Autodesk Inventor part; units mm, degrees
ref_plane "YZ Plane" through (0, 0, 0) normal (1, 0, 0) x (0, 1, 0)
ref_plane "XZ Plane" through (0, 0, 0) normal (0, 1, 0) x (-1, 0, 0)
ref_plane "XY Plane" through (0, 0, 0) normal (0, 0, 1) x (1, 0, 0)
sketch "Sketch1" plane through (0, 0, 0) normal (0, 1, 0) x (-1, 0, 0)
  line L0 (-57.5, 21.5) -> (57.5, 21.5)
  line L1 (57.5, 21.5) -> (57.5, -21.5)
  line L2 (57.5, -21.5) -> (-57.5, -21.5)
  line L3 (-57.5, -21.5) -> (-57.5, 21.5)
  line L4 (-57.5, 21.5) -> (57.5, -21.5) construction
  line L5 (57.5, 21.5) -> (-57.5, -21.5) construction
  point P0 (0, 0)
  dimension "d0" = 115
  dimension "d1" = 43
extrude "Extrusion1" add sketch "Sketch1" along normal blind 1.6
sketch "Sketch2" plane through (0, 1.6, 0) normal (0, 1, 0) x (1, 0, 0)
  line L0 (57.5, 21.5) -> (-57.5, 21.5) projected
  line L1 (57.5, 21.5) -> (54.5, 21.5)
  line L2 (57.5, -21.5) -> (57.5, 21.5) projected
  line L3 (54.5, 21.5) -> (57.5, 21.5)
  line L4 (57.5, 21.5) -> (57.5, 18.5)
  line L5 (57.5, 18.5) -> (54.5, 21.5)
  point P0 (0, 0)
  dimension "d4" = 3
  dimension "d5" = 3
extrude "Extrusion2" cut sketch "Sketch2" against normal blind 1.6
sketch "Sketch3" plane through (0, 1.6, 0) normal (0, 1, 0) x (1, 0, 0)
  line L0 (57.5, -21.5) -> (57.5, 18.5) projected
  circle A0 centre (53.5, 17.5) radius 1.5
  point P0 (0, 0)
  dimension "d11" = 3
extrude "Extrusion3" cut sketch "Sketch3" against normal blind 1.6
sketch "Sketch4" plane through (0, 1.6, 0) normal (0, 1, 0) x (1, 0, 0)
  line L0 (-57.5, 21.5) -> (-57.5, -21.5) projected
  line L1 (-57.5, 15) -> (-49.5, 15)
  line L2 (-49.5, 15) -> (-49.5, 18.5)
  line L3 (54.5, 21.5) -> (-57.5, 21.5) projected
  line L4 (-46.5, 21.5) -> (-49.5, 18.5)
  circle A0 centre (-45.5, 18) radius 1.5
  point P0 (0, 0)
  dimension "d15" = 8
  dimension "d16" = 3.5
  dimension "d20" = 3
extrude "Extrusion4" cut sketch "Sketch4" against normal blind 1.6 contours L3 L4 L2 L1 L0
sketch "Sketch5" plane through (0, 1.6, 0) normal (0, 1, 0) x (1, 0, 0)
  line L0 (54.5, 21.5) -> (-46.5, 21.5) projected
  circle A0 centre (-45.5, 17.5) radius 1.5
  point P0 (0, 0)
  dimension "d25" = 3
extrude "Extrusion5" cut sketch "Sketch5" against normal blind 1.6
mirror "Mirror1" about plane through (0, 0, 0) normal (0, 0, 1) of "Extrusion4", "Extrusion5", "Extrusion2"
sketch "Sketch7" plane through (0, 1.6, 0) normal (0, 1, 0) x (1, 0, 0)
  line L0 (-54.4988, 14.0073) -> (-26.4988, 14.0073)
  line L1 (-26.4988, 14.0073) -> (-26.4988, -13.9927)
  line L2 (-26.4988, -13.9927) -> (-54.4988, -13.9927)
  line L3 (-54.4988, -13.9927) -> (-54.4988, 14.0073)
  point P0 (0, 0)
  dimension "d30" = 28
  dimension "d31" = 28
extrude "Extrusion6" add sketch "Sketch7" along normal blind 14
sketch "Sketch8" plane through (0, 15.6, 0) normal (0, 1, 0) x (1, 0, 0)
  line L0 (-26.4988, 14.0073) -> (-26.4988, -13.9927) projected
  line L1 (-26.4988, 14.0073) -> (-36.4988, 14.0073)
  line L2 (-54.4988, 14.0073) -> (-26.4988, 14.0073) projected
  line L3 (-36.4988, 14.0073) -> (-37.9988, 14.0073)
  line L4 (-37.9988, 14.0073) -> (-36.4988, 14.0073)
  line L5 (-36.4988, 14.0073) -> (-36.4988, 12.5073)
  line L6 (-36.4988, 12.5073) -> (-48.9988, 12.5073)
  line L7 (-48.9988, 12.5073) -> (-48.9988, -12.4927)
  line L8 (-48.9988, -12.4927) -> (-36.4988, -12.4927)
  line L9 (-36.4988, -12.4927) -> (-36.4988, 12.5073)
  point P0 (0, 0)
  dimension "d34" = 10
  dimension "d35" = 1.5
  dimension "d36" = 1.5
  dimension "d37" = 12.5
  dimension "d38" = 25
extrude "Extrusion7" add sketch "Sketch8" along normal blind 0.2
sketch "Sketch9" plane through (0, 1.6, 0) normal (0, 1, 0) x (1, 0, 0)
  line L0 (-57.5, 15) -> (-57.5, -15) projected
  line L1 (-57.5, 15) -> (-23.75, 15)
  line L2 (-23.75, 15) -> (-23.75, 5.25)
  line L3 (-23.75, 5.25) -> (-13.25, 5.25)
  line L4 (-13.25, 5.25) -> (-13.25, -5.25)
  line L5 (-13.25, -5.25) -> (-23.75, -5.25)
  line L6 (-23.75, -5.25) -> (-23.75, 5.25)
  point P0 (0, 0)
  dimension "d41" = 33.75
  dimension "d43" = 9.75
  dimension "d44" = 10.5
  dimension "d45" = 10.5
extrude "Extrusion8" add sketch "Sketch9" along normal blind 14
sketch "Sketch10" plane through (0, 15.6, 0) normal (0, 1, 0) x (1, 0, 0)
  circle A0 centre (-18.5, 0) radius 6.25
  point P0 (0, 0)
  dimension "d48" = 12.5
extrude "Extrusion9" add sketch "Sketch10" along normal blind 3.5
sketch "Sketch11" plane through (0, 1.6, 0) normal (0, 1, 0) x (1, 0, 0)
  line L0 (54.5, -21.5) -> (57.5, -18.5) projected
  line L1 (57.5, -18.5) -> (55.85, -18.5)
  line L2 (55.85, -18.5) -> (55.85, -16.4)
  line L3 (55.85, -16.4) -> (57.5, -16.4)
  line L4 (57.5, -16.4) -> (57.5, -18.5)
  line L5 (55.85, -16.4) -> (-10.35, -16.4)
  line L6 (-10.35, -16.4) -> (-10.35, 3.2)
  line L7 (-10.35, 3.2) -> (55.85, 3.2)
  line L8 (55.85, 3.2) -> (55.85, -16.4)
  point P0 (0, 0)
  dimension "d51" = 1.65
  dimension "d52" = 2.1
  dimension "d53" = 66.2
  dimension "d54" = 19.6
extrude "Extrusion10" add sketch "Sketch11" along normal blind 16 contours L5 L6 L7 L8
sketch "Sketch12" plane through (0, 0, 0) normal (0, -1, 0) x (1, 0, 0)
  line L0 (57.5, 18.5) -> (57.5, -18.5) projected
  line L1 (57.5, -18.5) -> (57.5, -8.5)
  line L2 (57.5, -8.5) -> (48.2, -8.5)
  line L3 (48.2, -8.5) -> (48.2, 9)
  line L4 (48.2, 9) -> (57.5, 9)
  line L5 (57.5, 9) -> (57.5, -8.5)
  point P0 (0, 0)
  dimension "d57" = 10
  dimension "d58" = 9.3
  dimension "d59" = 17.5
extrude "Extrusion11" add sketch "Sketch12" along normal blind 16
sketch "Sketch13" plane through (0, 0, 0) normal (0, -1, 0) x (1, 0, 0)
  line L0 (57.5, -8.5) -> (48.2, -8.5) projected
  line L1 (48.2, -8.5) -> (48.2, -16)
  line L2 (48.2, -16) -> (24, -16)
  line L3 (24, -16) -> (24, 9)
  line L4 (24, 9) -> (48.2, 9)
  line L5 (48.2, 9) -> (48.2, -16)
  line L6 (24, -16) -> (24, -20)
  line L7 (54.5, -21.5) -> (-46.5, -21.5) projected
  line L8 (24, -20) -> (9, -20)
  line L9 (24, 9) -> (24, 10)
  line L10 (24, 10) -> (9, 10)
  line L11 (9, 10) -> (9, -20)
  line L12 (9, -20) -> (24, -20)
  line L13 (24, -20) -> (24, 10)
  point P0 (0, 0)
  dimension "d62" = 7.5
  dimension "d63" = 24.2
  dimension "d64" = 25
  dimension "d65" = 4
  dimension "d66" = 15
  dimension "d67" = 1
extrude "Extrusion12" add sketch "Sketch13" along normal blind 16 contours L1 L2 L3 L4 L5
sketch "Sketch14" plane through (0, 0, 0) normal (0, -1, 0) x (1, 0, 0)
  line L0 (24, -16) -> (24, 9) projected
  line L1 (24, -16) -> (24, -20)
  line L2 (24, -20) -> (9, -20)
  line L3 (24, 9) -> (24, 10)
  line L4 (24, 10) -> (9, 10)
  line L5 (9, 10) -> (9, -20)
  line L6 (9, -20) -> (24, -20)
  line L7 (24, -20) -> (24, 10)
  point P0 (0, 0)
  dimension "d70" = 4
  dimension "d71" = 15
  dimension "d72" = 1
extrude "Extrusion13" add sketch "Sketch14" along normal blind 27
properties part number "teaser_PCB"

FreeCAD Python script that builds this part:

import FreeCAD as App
import Part
import Sketcher

V = App.Vector

doc = App.newDocument("Part")
body = doc.addObject("PartDesign::Body", "Body")

sketch1 = body.newObject("Sketcher::SketchObject", "Sketch")
sketch1.AttachmentSupport = (doc.getObject("XZ_Plane"), [""])
sketch1.MapMode = "FlatFace"
sketch1.addGeometry([
    Part.LineSegment(V(-58, 22, 0), V(58, 22, 0)),
    Part.LineSegment(V(58, 22, 0), V(58, -22, 0)),
    Part.LineSegment(V(58, -22, 0), V(-58, -22, 0)),
    Part.LineSegment(V(-58, -22, 0), V(-58, 22, 0)),
], False)
sketch1.addConstraint([
    Sketcher.Constraint("Coincident", 0, 2, 1, 1),
    Sketcher.Constraint("Coincident", 1, 2, 2, 1),
    Sketcher.Constraint("Coincident", 2, 2, 3, 1),
    Sketcher.Constraint("Coincident", 3, 2, 0, 1),
    Sketcher.Constraint("Horizontal", 0),
    Sketcher.Constraint("Vertical", 1),
    Sketcher.Constraint("Horizontal", 2),
    Sketcher.Constraint("Vertical", 3),
    Sketcher.Constraint("Symmetric", 0, 2, 2, 2, -1, 1),
    Sketcher.Constraint("DistanceX", 0, 1, 0, 2, 115.0),
    Sketcher.Constraint("DistanceY", 1, 2, 1, 1, 43.0),
])
pad1 = body.newObject("PartDesign::Pad", "Pad")
pad1.Profile = sketch1
pad1.Length = 1.6
pad1.Reversed = True

sketch2 = body.newObject("Sketcher::SketchObject", "Sketch001")
sketch2.AttachmentSupport = (doc.getObject("XZ_Plane"), [""])
sketch2.MapMode = "FlatFace"
sketch2.AttachmentOffset = App.Placement(V(0, 0, -1.6), App.Rotation())
sketch2.addGeometry([
    Part.LineSegment(V(57.5, -18.5, 0), V(57.5, -21.5, 0)),
    Part.LineSegment(V(57.5, -21.5, 0), V(54.5, -21.5, 0)),
    Part.LineSegment(V(54.5, -21.5, 0), V(57.5, -18.5, 0)),
], False)
sketch2.addConstraint([
    Sketcher.Constraint("Coincident", 0, 2, 1, 1),
    Sketcher.Constraint("Coincident", 1, 2, 2, 1),
    Sketcher.Constraint("Coincident", 2, 2, 0, 1),
    Sketcher.Constraint("Vertical", 0),
    Sketcher.Constraint("Horizontal", 1),
    Sketcher.Constraint("Equal", 1, 0),
    Sketcher.Constraint("DistanceX", 1, 2, 1, 1, 3.0),
    Sketcher.Constraint("DistanceX", -1, 1, 0, 2, 57.5),
    Sketcher.Constraint("DistanceY", 0, 2, -1, 1, 21.5),
])
pocket1 = body.newObject("PartDesign::Pocket", "Pocket")
pocket1.Profile = sketch2
pocket1.Length = 1.6
pocket1.Reversed = True

sketch3 = body.newObject("Sketcher::SketchObject", "Sketch002")
sketch3.AttachmentSupport = (doc.getObject("XZ_Plane"), [""])
sketch3.MapMode = "FlatFace"
sketch3.AttachmentOffset = App.Placement(V(0, 0, -1.6), App.Rotation())
sketch3.addGeometry(Part.Circle(V(53.5, -17.5, 0), V(0, 0, 1), 1.5), False)
sketch3.addConstraint([
    Sketcher.Constraint("Diameter", 0, 3.0),
    Sketcher.Constraint("DistanceX", -1, 1, 0, 3, 53.5),
    Sketcher.Constraint("DistanceY", 0, 3, -1, 1, 17.5),
])
pocket2 = body.newObject("PartDesign::Pocket", "Pocket001")
pocket2.Profile = sketch3
pocket2.Length = 1.6
pocket2.Reversed = True

sketch4 = body.newObject("Sketcher::SketchObject", "Sketch003")
sketch4.AttachmentSupport = (doc.getObject("XZ_Plane"), [""])
sketch4.MapMode = "FlatFace"
sketch4.AttachmentOffset = App.Placement(V(0, 0, -1.6), App.Rotation())
sketch4.addGeometry([
    Part.LineSegment(V(-46.5, -21.5, 0), V(-57.5, -21.5, 0)),
    Part.LineSegment(V(-57.5, -21.5, 0), V(-57.5, -15, 0)),
    Part.LineSegment(V(-57.5, -15, 0), V(-49.5, -15, 0)),
    Part.LineSegment(V(-49.5, -15, 0), V(-49.5, -18.5, 0)),
    Part.LineSegment(V(-49.5, -18.5, 0), V(-46.5, -21.5, 0)),
], False)
sketch4.addConstraint([
    Sketcher.Constraint("Coincident", 0, 2, 1, 1),
    Sketcher.Constraint("Coincident", 1, 2, 2, 1),
    Sketcher.Constraint("Coincident", 2, 2, 3, 1),
    Sketcher.Constraint("Coincident", 3, 2, 4, 1),
    Sketcher.Constraint("Coincident", 4, 2, 0, 1),
    Sketcher.Constraint("Horizontal", 0),
    Sketcher.Constraint("Vertical", 1),
    Sketcher.Constraint("Horizontal", 2),
    Sketcher.Constraint("Vertical", 3),
    Sketcher.Constraint("DistanceX", 2, 1, 2, 2, 8.0),
    Sketcher.Constraint("DistanceY", 3, 2, 3, 1, 3.5),
    Sketcher.Constraint("DistanceY", 0, 2, 3, 2, 3.0),
    Sketcher.Constraint("DistanceX", 3, 2, 4, 2, 3.0),
    Sketcher.Constraint("DistanceY", 1, 2, -1, 1, 15.0),
    Sketcher.Constraint("DistanceX", 0, 2, -1, 1, 57.5),
])
pocket3 = body.newObject("PartDesign::Pocket", "Pocket002")
pocket3.Profile = sketch4
pocket3.Length = 1.6
pocket3.Reversed = True

sketch5 = body.newObject("Sketcher::SketchObject", "Sketch004")
sketch5.AttachmentSupport = (doc.getObject("XZ_Plane"), [""])
sketch5.MapMode = "FlatFace"
sketch5.AttachmentOffset = App.Placement(V(0, 0, -1.6), App.Rotation())
sketch5.addGeometry(Part.Circle(V(-45.5, -17.5, 0), V(0, 0, 1), 1.5), False)
sketch5.addConstraint([
    Sketcher.Constraint("Diameter", 0, 3.0),
    Sketcher.Constraint("DistanceX", 0, 3, -1, 1, 45.5),
    Sketcher.Constraint("DistanceY", 0, 3, -1, 1, 17.5),
])
pocket4 = body.newObject("PartDesign::Pocket", "Pocket003")
pocket4.Profile = sketch5
pocket4.Length = 1.6
pocket4.Reversed = True
doc.recompute()

mirrored = body.newObject("PartDesign::Mirrored", "Mirrored")
mirrored.Originals = [pocket3, pocket4, pocket1]
mirrored.MirrorPlane = (doc.getObject("XY_Plane"), [""])
body.Tip = mirrored

sketch6 = body.newObject("Sketcher::SketchObject", "Sketch005")
sketch6.AttachmentSupport = (doc.getObject("XZ_Plane"), [""])
sketch6.MapMode = "FlatFace"
sketch6.AttachmentOffset = App.Placement(V(0, 0, -1.6), App.Rotation())
sketch6.addGeometry([
    Part.LineSegment(V(-26, -14, 0), V(-54, -14, 0)),
    Part.LineSegment(V(-54, -14, 0), V(-54, 14, 0)),
    Part.LineSegment(V(-54, 14, 0), V(-26, 14, 0)),
    Part.LineSegment(V(-26, 14, 0), V(-26, -14, 0)),
], False)
sketch6.addConstraint([
    Sketcher.Constraint("Coincident", 0, 2, 1, 1),
    Sketcher.Constraint("Coincident", 1, 2, 2, 1),
    Sketcher.Constraint("Coincident", 2, 2, 3, 1),
    Sketcher.Constraint("Coincident", 3, 2, 0, 1),
    Sketcher.Constraint("Horizontal", 0),
    Sketcher.Constraint("Vertical", 1),
    Sketcher.Constraint("Horizontal", 2),
    Sketcher.Constraint("Vertical", 3),
    Sketcher.Constraint("Equal", 2, 1),
    Sketcher.Constraint("DistanceX", 0, 2, 0, 1, 28.0),
    Sketcher.Constraint("DistanceX", 0, 2, -1, 1, 54.4988),
    Sketcher.Constraint("DistanceY", 0, 2, -1, 1, 14.0073),
])
pad2 = body.newObject("PartDesign::Pad", "Pad001")
pad2.Profile = sketch6
pad2.Length = 14
pad2.Reversed = True

sketch7 = body.newObject("Sketcher::SketchObject", "Sketch006")
sketch7.AttachmentSupport = (doc.getObject("XZ_Plane"), [""])
sketch7.MapMode = "FlatFace"
sketch7.AttachmentOffset = App.Placement(V(0, 0, -15.6), App.Rotation())
sketch7.addGeometry([
    Part.LineSegment(V(-36, 12, 0), V(-36, -13, 0)),
    Part.LineSegment(V(-36, -13, 0), V(-49, -13, 0)),
    Part.LineSegment(V(-49, -13, 0), V(-49, 12, 0)),
    Part.LineSegment(V(-49, 12, 0), V(-36, 12, 0)),
], False)
sketch7.addConstraint([
    Sketcher.Constraint("Coincident", 0, 2, 1, 1),
    Sketcher.Constraint("Coincident", 1, 2, 2, 1),
    Sketcher.Constraint("Coincident", 2, 2, 3, 1),
    Sketcher.Constraint("Coincident", 3, 2, 0, 1),
    Sketcher.Constraint("Vertical", 0),
    Sketcher.Constraint("Horizontal", 1),
    Sketcher.Constraint("Vertical", 2),
    Sketcher.Constraint("Horizontal", 3),
    Sketcher.Constraint("DistanceY", 0, 2, 0, 1, 25.0),
    Sketcher.Constraint("DistanceX", 1, 2, 1, 1, 12.5),
    Sketcher.Constraint("DistanceX", 0, 2, -1, 1, 36.4988),
    Sketcher.Constraint("DistanceY", 0, 2, -1, 1, 12.5073),
])
pad3 = body.newObject("PartDesign::Pad", "Pad002")
pad3.Profile = sketch7
pad3.Length = 0.2
pad3.Reversed = True

sketch8 = body.newObject("Sketcher::SketchObject", "Sketch007")
sketch8.AttachmentSupport = (doc.getObject("XZ_Plane"), [""])
sketch8.MapMode = "FlatFace"
sketch8.AttachmentOffset = App.Placement(V(0, 0, -1.6), App.Rotation())
sketch8.addGeometry([
    Part.LineSegment(V(-13, -5, 0), V(-24, -5, 0)),
    Part.LineSegment(V(-24, -5, 0), V(-24, 5, 0)),
    Part.LineSegment(V(-24, 5, 0), V(-13, 5, 0)),
    Part.LineSegment(V(-13, 5, 0), V(-13, -5, 0)),
], False)
sketch8.addConstraint([
    Sketcher.Constraint("Coincident", 0, 2, 1, 1),
    Sketcher.Constraint("Coincident", 1, 2, 2, 1),
    Sketcher.Constraint("Coincident", 2, 2, 3, 1),
    Sketcher.Constraint("Coincident", 3, 2, 0, 1),
    Sketcher.Constraint("Horizontal", 0),
    Sketcher.Constraint("Vertical", 1),
    Sketcher.Constraint("Horizontal", 2),
    Sketcher.Constraint("Vertical", 3),
    Sketcher.Constraint("Equal", 2, 1),
    Sketcher.Constraint("DistanceX", 0, 2, 0, 1, 10.5),
    Sketcher.Constraint("DistanceX", 0, 2, -1, 1, 23.75),
    Sketcher.Constraint("DistanceY", 0, 2, -1, 1, 5.25),
])
pad4 = body.newObject("PartDesign::Pad", "Pad003")
pad4.Profile = sketch8
pad4.Length = 14
pad4.Reversed = True

sketch9 = body.newObject("Sketcher::SketchObject", "Sketch008")
sketch9.AttachmentSupport = (doc.getObject("XZ_Plane"), [""])
sketch9.MapMode = "FlatFace"
sketch9.AttachmentOffset = App.Placement(V(0, 0, -15.6), App.Rotation())
sketch9.addGeometry(Part.Circle(V(-18, 0, 0), V(0, 0, 1), 6), False)
sketch9.addConstraint([
    Sketcher.Constraint("PointOnObject", 0, 3, -1),
    Sketcher.Constraint("Diameter", 0, 12.5),
    Sketcher.Constraint("DistanceX", 0, 3, -1, 1, 18.5),
])
pad5 = body.newObject("PartDesign::Pad", "Pad004")
pad5.Profile = sketch9
pad5.Length = 3.5
pad5.Reversed = True

sketch10 = body.newObject("Sketcher::SketchObject", "Sketch009")
sketch10.AttachmentSupport = (doc.getObject("XZ_Plane"), [""])
sketch10.MapMode = "FlatFace"
sketch10.AttachmentOffset = App.Placement(V(0, 0, -1.6), App.Rotation())
sketch10.addGeometry([
    Part.LineSegment(V(-10, 16, 0), V(56, 16, 0)),
    Part.LineSegment(V(56, 16, 0), V(56, -3, 0)),
    Part.LineSegment(V(56, -3, 0), V(-10, -3, 0)),
    Part.LineSegment(V(-10, -3, 0), V(-10, 16, 0)),
], False)
sketch10.addConstraint([
    Sketcher.Constraint("Coincident", 0, 2, 1, 1),
    Sketcher.Constraint("Coincident", 1, 2, 2, 1),
    Sketcher.Constraint("Coincident", 2, 2, 3, 1),
    Sketcher.Constraint("Coincident", 3, 2, 0, 1),
    Sketcher.Constraint("Horizontal", 0),
    Sketcher.Constraint("Vertical", 1),
    Sketcher.Constraint("Horizontal", 2),
    Sketcher.Constraint("Vertical", 3),
    Sketcher.Constraint("DistanceX", 0, 1, 0, 2, 66.2),
    Sketcher.Constraint("DistanceY", 1, 2, 1, 1, 19.6),
    Sketcher.Constraint("DistanceY", -1, 1, 0, 2, 16.4),
    Sketcher.Constraint("DistanceX", -1, 1, 0, 2, 55.85),
])
pad6 = body.newObject("PartDesign::Pad", "Pad005")
pad6.Profile = sketch10
pad6.Length = 16
pad6.Reversed = True

sketch11 = body.newObject("Sketcher::SketchObject", "Sketch010")
sketch11.AttachmentSupport = (doc.getObject("XZ_Plane"), [""])
sketch11.MapMode = "FlatFace"
sketch11.addGeometry([
    Part.LineSegment(V(58, -8, 0), V(58, 9, 0)),
    Part.LineSegment(V(58, 9, 0), V(48, 9, 0)),
    Part.LineSegment(V(48, 9, 0), V(48, -8, 0)),
    Part.LineSegment(V(48, -8, 0), V(58, -8, 0)),
], False)
sketch11.addConstraint([
    Sketcher.Constraint("Coincident", 0, 2, 1, 1),
    Sketcher.Constraint("Coincident", 1, 2, 2, 1),
    Sketcher.Constraint("Coincident", 2, 2, 3, 1),
    Sketcher.Constraint("Coincident", 3, 2, 0, 1),
    Sketcher.Constraint("Vertical", 0),
    Sketcher.Constraint("Horizontal", 1),
    Sketcher.Constraint("Vertical", 2),
    Sketcher.Constraint("Horizontal", 3),
    Sketcher.Constraint("DistanceX", 1, 2, 1, 1, 9.3),
    Sketcher.Constraint("DistanceY", 0, 1, 0, 2, 17.5),
    Sketcher.Constraint("DistanceY", -1, 1, 0, 2, 9.0),
    Sketcher.Constraint("DistanceX", -1, 1, 0, 2, 57.5),
])
pad7 = body.newObject("PartDesign::Pad", "Pad006")
pad7.Profile = sketch11
pad7.Length = 16

sketch12 = body.newObject("Sketcher::SketchObject", "Sketch011")
sketch12.AttachmentSupport = (doc.getObject("XZ_Plane"), [""])
sketch12.MapMode = "FlatFace"
sketch12.addGeometry([
    Part.LineSegment(V(48, -16, 0), V(48, 9, 0)),
    Part.LineSegment(V(48, 9, 0), V(24, 9, 0)),
    Part.LineSegment(V(24, 9, 0), V(24, -16, 0)),
    Part.LineSegment(V(24, -16, 0), V(48, -16, 0)),
], False)
sketch12.addConstraint([
    Sketcher.Constraint("Coincident", 0, 2, 1, 1),
    Sketcher.Constraint("Coincident", 1, 2, 2, 1),
    Sketcher.Constraint("Coincident", 2, 2, 3, 1),
    Sketcher.Constraint("Coincident", 3, 2, 0, 1),
    Sketcher.Constraint("Vertical", 0),
    Sketcher.Constraint("Horizontal", 1),
    Sketcher.Constraint("Vertical", 2),
    Sketcher.Constraint("Horizontal", 3),
    Sketcher.Constraint("DistanceY", 0, 1, 0, 2, 25.0),
    Sketcher.Constraint("DistanceX", 1, 2, 1, 1, 24.2),
    Sketcher.Constraint("DistanceY", -1, 1, 0, 2, 9.0),
    Sketcher.Constraint("DistanceX", -1, 1, 1, 2, 24.0),
])
pad8 = body.newObject("PartDesign::Pad", "Pad007")
pad8.Profile = sketch12
pad8.Length = 16

sketch13 = body.newObject("Sketcher::SketchObject", "Sketch012")
sketch13.AttachmentSupport = (doc.getObject("XZ_Plane"), [""])
sketch13.MapMode = "FlatFace"
sketch13.addGeometry([
    Part.LineSegment(V(24, -20, 0), V(24, 10, 0)),
    Part.LineSegment(V(24, 10, 0), V(9, 10, 0)),
    Part.LineSegment(V(9, 10, 0), V(9, -20, 0)),
    Part.LineSegment(V(9, -20, 0), V(24, -20, 0)),
], False)
sketch13.addConstraint([
    Sketcher.Constraint("Coincident", 0, 2, 1, 1),
    Sketcher.Constraint("Coincident", 1, 2, 2, 1),
    Sketcher.Constraint("Coincident", 2, 2, 3, 1),
    Sketcher.Constraint("Coincident", 3, 2, 0, 1),
    Sketcher.Constraint("Vertical", 0),
    Sketcher.Constraint("Horizontal", 1),
    Sketcher.Constraint("Vertical", 2),
    Sketcher.Constraint("Horizontal", 3),
    Sketcher.Constraint("DistanceX", 1, 2, 1, 1, 15.0),
    Sketcher.Constraint("DistanceY", 0, 1, 0, 2, 30.0),
    Sketcher.Constraint("DistanceX", -1, 1, 0, 2, 24.0),
    Sketcher.Constraint("DistanceY", -1, 1, 0, 2, 10.0),
])
pad9 = body.newObject("PartDesign::Pad", "Pad008")
pad9.Profile = sketch13
pad9.Length = 27

doc.recompute()
